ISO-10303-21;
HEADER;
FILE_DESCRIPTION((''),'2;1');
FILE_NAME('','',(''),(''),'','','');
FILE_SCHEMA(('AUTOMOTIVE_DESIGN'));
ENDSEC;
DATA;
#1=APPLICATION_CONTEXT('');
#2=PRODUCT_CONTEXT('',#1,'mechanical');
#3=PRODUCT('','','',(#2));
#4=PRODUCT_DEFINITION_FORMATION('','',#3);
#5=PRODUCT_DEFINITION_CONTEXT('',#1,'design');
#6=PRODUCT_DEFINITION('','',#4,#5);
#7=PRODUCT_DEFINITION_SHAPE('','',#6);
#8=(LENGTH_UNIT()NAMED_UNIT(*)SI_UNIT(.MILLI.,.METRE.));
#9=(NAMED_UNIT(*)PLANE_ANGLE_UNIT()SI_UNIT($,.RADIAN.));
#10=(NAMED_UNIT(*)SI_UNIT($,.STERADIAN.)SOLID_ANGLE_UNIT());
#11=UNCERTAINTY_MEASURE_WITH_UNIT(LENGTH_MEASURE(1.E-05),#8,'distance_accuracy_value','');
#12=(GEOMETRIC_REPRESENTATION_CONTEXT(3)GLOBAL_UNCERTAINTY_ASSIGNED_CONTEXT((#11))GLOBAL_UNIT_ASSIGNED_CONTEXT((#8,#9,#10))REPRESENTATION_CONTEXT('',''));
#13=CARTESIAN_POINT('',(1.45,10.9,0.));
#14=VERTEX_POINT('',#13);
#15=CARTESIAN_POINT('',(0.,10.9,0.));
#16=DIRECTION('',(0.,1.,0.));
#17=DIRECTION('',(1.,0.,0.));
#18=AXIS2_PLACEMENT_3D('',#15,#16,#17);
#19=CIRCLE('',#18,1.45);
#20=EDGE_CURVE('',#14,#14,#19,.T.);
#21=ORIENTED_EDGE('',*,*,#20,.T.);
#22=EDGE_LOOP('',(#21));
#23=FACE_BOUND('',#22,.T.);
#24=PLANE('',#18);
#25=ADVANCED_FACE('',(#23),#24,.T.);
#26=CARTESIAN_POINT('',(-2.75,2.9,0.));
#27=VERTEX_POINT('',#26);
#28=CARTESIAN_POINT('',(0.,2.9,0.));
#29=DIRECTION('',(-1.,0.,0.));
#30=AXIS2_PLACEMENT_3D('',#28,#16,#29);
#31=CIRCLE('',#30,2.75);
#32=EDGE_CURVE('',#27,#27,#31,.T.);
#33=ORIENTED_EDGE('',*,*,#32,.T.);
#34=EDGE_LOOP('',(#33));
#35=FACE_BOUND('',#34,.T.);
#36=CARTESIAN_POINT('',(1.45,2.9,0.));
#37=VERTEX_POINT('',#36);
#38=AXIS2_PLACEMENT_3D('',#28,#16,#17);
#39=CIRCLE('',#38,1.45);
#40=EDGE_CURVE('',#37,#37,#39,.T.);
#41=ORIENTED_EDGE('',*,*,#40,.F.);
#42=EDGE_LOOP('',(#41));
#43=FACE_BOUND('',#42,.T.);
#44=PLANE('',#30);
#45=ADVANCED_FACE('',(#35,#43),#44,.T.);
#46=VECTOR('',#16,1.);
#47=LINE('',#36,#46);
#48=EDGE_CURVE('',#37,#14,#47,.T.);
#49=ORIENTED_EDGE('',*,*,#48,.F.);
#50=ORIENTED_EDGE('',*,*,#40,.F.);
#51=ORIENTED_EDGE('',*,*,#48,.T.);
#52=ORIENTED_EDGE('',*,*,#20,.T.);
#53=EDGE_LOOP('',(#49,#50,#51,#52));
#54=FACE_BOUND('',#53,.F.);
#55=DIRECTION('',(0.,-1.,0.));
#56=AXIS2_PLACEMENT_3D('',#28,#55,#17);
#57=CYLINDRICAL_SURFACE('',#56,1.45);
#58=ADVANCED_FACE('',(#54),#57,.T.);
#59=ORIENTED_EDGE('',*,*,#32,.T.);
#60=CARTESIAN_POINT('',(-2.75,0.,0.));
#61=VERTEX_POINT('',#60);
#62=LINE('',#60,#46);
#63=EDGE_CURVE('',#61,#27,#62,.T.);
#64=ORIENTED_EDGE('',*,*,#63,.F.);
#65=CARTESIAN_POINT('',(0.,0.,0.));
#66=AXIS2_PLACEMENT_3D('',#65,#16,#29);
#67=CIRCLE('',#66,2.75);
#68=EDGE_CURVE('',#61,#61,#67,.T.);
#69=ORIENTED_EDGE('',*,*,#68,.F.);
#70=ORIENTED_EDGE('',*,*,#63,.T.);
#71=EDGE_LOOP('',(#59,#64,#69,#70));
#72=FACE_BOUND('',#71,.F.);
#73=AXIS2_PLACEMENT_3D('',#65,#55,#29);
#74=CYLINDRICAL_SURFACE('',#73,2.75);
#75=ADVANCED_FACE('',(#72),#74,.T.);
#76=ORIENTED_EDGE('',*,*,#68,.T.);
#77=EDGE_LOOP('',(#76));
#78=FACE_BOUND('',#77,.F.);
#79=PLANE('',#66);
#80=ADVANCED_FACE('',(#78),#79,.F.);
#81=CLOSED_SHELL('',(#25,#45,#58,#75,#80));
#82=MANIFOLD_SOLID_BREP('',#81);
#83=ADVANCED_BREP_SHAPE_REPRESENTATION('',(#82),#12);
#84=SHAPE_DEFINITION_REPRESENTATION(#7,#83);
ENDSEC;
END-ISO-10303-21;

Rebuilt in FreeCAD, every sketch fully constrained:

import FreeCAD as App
import Part
import Sketcher

V = App.Vector

doc = App.newDocument("Part")
body = doc.addObject("PartDesign::Body", "Body")

# Sketch on XZ plane
sketch1 = body.newObject("Sketcher::SketchObject", "Sketch")
sketch1.AttachmentSupport = (doc.getObject("XZ_Plane"), [""])
sketch1.MapMode = "FlatFace"
sketch1.addGeometry(Part.Circle(V(0, 0, 0), V(0, 0, 1), 2.75), False)
sketch1.addConstraint([
    Sketcher.Constraint("Coincident", 0, 3, -1, 1),
    Sketcher.Constraint("Diameter", 0, 5.5),
])
pad1 = body.newObject("PartDesign::Pad", "Pad")
pad1.Profile = sketch1
pad1.Length = 2.9
pad1.Reversed = True

# Sketch on XZ plane
sketch2 = body.newObject("Sketcher::SketchObject", "Sketch001")
sketch2.AttachmentSupport = (doc.getObject("XZ_Plane"), [""])
sketch2.MapMode = "FlatFace"
sketch2.AttachmentOffset = App.Placement(V(0, 0, -2.9), App.Rotation())
sketch2.addGeometry(Part.Circle(V(0, 0, 0), V(0, 0, 1), 1.45), False)
sketch2.addConstraint([
    Sketcher.Constraint("Coincident", 0, 3, -1, 1),
    Sketcher.Constraint("Diameter", 0, 2.9),
])
pad2 = body.newObject("PartDesign::Pad", "Pad001")
pad2.Profile = sketch2
pad2.Length = 8
pad2.Reversed = True

doc.recompute()
